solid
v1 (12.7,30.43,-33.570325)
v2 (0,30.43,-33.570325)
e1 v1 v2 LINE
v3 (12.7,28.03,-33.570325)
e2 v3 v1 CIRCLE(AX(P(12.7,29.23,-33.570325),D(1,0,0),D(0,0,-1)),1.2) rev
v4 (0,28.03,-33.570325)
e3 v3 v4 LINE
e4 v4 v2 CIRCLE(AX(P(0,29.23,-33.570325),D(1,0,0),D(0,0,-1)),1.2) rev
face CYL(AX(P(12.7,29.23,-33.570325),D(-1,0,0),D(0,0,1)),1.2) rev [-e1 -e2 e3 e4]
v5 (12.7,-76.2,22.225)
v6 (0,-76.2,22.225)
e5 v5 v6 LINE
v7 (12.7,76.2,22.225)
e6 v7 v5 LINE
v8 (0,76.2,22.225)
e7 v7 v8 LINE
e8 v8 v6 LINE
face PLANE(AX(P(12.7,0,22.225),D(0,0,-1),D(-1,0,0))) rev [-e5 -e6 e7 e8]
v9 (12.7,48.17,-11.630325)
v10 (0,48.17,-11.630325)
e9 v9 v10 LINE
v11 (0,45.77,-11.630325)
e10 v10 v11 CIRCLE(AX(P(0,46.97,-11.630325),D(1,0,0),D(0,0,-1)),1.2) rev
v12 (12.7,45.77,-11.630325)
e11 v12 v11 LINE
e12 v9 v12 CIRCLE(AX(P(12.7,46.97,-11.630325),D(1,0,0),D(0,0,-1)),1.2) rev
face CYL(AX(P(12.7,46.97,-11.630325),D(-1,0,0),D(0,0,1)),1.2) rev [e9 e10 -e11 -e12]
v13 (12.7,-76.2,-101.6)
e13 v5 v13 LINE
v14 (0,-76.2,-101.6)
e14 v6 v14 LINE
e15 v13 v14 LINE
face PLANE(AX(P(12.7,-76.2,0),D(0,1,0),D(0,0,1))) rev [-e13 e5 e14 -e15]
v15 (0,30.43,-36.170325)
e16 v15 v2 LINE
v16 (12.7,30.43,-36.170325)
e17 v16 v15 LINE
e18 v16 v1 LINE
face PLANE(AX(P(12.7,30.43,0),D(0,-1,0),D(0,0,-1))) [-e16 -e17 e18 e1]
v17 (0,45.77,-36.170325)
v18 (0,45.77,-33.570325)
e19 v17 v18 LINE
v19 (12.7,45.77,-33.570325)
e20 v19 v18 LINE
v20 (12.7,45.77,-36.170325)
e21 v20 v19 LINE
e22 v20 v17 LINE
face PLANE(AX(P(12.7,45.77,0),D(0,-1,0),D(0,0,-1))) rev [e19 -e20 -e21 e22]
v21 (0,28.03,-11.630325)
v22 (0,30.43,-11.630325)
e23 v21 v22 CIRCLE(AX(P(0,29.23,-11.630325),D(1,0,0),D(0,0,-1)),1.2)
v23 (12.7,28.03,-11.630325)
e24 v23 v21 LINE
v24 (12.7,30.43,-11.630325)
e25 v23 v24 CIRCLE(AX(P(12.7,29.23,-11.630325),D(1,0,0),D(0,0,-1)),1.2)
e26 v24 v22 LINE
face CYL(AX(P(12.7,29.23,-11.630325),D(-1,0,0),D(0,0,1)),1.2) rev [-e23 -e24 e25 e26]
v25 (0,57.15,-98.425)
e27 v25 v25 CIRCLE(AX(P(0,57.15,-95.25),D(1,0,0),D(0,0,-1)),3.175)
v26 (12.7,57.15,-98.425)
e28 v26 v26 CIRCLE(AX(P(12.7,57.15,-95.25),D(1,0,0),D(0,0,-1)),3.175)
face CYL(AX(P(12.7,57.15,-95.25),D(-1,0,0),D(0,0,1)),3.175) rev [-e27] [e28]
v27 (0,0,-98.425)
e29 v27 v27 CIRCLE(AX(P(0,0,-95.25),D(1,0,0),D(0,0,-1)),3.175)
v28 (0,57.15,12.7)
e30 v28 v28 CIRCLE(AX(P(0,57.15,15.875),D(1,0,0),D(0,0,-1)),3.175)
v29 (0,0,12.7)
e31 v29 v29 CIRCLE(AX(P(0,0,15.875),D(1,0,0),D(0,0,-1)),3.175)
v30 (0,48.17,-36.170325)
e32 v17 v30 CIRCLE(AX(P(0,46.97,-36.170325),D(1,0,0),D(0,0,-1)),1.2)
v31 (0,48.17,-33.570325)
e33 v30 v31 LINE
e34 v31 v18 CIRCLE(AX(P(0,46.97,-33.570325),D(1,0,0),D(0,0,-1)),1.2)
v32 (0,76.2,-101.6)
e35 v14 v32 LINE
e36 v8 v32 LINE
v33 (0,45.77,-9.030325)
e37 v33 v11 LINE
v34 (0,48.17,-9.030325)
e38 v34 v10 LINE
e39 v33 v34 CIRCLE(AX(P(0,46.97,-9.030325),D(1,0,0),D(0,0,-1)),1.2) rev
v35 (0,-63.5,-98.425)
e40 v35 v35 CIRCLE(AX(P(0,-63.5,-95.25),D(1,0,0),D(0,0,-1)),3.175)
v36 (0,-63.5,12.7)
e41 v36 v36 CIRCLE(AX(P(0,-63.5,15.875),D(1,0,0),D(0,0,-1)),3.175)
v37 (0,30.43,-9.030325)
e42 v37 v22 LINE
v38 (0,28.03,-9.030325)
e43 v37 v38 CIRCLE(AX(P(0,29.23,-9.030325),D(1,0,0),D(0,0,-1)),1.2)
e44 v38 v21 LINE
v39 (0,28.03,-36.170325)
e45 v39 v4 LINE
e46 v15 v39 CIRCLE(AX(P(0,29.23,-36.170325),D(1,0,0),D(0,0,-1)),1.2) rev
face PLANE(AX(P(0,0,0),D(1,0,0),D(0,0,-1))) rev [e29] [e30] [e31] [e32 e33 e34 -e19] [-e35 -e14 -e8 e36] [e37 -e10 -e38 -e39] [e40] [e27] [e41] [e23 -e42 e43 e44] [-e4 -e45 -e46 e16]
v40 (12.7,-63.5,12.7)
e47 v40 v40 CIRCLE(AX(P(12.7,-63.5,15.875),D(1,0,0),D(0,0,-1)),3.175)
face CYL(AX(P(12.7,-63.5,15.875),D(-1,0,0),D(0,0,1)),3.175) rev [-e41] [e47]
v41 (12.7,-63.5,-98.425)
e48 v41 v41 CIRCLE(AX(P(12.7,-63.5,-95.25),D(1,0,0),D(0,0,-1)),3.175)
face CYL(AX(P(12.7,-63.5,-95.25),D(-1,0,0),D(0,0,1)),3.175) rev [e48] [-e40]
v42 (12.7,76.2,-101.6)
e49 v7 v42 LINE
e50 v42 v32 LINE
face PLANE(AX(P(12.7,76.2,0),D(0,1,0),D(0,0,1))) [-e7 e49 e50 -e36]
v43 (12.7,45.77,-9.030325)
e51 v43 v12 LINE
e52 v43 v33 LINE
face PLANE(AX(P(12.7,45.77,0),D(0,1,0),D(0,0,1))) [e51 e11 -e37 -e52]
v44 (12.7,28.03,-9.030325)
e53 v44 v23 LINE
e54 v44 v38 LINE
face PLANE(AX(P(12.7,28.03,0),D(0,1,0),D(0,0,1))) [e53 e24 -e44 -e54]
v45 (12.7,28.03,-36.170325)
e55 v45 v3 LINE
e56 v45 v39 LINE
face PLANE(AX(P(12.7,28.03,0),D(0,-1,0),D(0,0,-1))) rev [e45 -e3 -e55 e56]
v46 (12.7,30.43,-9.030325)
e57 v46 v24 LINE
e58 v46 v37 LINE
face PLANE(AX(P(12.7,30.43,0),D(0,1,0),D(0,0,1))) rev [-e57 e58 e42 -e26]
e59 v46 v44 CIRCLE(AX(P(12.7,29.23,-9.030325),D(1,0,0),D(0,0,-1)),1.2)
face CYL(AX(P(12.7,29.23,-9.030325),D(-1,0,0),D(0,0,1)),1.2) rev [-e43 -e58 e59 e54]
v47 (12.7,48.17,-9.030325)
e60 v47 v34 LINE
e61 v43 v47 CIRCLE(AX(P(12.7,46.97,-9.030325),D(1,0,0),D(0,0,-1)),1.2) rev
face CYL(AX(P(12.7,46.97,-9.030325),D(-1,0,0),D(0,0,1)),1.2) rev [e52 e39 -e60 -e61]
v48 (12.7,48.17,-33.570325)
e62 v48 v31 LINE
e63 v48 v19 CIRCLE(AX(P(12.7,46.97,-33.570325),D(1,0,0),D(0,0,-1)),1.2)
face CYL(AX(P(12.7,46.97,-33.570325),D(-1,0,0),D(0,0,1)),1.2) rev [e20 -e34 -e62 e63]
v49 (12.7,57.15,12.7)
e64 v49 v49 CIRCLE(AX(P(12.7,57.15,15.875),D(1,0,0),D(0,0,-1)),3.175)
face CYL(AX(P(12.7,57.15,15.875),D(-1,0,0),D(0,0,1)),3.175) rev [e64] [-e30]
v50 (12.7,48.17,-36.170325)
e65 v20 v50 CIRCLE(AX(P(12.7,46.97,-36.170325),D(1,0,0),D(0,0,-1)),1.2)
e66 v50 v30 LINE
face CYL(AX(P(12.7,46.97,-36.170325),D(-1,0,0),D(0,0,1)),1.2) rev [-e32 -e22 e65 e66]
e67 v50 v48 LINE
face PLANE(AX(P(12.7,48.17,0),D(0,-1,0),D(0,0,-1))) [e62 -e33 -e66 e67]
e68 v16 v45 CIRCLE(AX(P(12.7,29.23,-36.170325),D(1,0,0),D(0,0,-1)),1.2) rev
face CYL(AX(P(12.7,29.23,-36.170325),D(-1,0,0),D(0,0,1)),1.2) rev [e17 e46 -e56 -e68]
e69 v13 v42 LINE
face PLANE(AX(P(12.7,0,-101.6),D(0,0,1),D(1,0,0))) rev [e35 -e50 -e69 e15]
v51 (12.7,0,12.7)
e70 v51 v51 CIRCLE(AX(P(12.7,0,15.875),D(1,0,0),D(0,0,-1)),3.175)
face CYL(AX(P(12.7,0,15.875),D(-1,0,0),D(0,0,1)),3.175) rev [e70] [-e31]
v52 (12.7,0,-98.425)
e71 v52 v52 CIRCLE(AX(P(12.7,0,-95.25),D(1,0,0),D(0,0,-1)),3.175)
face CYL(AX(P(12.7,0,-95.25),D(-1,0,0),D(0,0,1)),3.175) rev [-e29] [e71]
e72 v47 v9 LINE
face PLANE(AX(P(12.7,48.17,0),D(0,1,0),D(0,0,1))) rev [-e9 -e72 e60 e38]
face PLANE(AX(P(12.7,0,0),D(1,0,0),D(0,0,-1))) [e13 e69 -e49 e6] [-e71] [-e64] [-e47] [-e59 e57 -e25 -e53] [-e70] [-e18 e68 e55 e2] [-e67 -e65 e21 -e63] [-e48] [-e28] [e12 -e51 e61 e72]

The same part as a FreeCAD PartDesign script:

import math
import FreeCAD as App
import Part
import Sketcher
Q = App.Units.Quantity


def add_polygon(sketch, points):
    """Adds a closed chain of lines whose ends are joined by coincident constraints."""
    first, n = sketch.GeometryCount, len(points)
    for a, b in zip(points, points[1:] + points[:1]):
        sketch.addGeometry(Part.LineSegment(App.Vector(*a, 0), App.Vector(*b, 0)), False)
    for i in range(n):
        sketch.addConstraint(Sketcher.Constraint("Coincident", first + i, 2, first + (i + 1) % n, 1))

doc = App.newDocument("Part")
body = doc.addObject("PartDesign::Body", "Body")

# Sketch on YZ plane
sketch1 = body.newObject("Sketcher::SketchObject", "Sketch")
sketch1.AttachmentSupport = (doc.getObject("YZ_Plane"), [""])
sketch1.MapMode = "FlatFace"
add_polygon(sketch1, [(-76.2, 22.2), (-76.2, -101.6), (76.2, -101.6), (76.2, 22.2)])  # lines 0-3
sketch1.addGeometry(Part.ArcOfCircle(Part.Circle(App.Vector(-63.5, 15.9, 0), App.Vector(0, 0, 1), 3.2), math.radians(0), math.radians(180)), False)  # 4
sketch1.addGeometry(Part.ArcOfCircle(Part.Circle(App.Vector(-63.5, 15.9, 0), App.Vector(0, 0, 1), 3.2), math.radians(-90), math.radians(0)), False)  # 5
sketch1.addGeometry(Part.ArcOfCircle(Part.Circle(App.Vector(-63.5, 15.9, 0), App.Vector(0, 0, 1), 3.2), math.radians(-180), math.radians(-90)), False)  # 6
sketch1.addGeometry(Part.ArcOfCircle(Part.Circle(App.Vector(0, 15.9, 0), App.Vector(0, 0, 1), 3.2), math.radians(90), math.radians(180)), False)  # 7
sketch1.addGeometry(Part.ArcOfCircle(Part.Circle(App.Vector(0, 15.9, 0), App.Vector(0, 0, 1), 3.2), math.radians(0), math.radians(90)), False)  # 8
sketch1.addGeometry(Part.ArcOfCircle(Part.Circle(App.Vector(0, 15.9, 0), App.Vector(0, 0, 1), 3.2), math.radians(-90), math.radians(0)), False)  # 9
sketch1.addGeometry(Part.ArcOfCircle(Part.Circle(App.Vector(0, 15.9, 0), App.Vector(0, 0, 1), 3.2), math.radians(-180), math.radians(-90)), False)  # 10
sketch1.addGeometry(Part.ArcOfCircle(Part.Circle(App.Vector(57.1, 15.9, 0), App.Vector(0, 0, 1), 3.2), math.radians(0), math.radians(180)), False)  # 11
sketch1.addGeometry(Part.ArcOfCircle(Part.Circle(App.Vector(57.1, 15.9, 0), App.Vector(0, 0, 1), 3.2), math.radians(-90), math.radians(0)), False)  # 12
sketch1.addGeometry(Part.ArcOfCircle(Part.Circle(App.Vector(57.2, 15.9, 0), App.Vector(0, 0, 1), 3.2), math.radians(-180), math.radians(-90)), False)  # 13
sketch1.addGeometry(Part.ArcOfCircle(Part.Circle(App.Vector(0, -95.3, 0), App.Vector(0, 0, 1), 3.2), math.radians(90), math.radians(180)), False)  # 14
sketch1.addGeometry(Part.ArcOfCircle(Part.Circle(App.Vector(0, -95.3, 0), App.Vector(0, 0, 1), 3.2), math.radians(0), math.radians(90)), False)  # 15
sketch1.addGeometry(Part.ArcOfCircle(Part.Circle(App.Vector(0, -95.2, 0), App.Vector(0, 0, 1), 3.2), math.radians(-90), math.radians(0)), False)  # 16
sketch1.addGeometry(Part.ArcOfCircle(Part.Circle(App.Vector(0, -95.2, 0), App.Vector(0, 0, 1), 3.2), math.radians(-180), math.radians(-90)), False)  # 17
sketch1.addGeometry(Part.ArcOfCircle(Part.Circle(App.Vector(-63.5, -95.2, 0), App.Vector(0, 0, 1), 3.2), math.radians(0), math.radians(180)), False)  # 18
sketch1.addGeometry(Part.ArcOfCircle(Part.Circle(App.Vector(-63.5, -95.2, 0), App.Vector(0, 0, 1), 3.2), math.radians(-90), math.radians(0)), False)  # 19
sketch1.addGeometry(Part.ArcOfCircle(Part.Circle(App.Vector(-63.5, -95.2, 0), App.Vector(0, 0, 1), 3.2), math.radians(-180), math.radians(-90)), False)  # 20
sketch1.addGeometry(Part.ArcOfCircle(Part.Circle(App.Vector(57.1, -95.2, 0), App.Vector(0, 0, 1), 3.2), math.radians(0), math.radians(180)), False)  # 21
sketch1.addGeometry(Part.ArcOfCircle(Part.Circle(App.Vector(57.1, -95.2, 0), App.Vector(0, 0, 1), 3.2), math.radians(-90), math.radians(0)), False)  # 22
sketch1.addGeometry(Part.ArcOfCircle(Part.Circle(App.Vector(57.2, -95.2, 0), App.Vector(0, 0, 1), 3.2), math.radians(-180), math.radians(-90)), False)  # 23
sketch1.addGeometry(Part.ArcOfCircle(Part.Circle(App.Vector(47, -36.2, 0), App.Vector(0, 0, 1), 1.2), math.radians(-180), math.radians(-90)), False)  # 24
sketch1.addGeometry(Part.LineSegment(App.Vector(45.8, -36.2, 0), App.Vector(45.8, -33.6, 0)), False)  # 25
sketch1.addGeometry(Part.ArcOfCircle(Part.Circle(App.Vector(47, -33.6, 0), App.Vector(0, 0, 1), 1.2), math.radians(0), math.radians(180)), False)  # 26
sketch1.addGeometry(Part.LineSegment(App.Vector(48.2, -33.6, 0), App.Vector(48.2, -36.2, 0)), False)  # 27
sketch1.addGeometry(Part.ArcOfCircle(Part.Circle(App.Vector(47, -36.2, 0), App.Vector(0, 0, 1), 1.2), math.radians(-90), math.radians(0)), False)  # 28
sketch1.addGeometry(Part.LineSegment(App.Vector(45.8, -11.6, 0), App.Vector(45.8, -9, 0)), False)  # 29
sketch1.addGeometry(Part.ArcOfCircle(Part.Circle(App.Vector(47, -9, 0), App.Vector(0, 0, 1), 1.2), math.radians(0), math.radians(180)), False)  # 30
sketch1.addGeometry(Part.LineSegment(App.Vector(48.2, -9, 0), App.Vector(48.2, -11.6, 0)), False)  # 31
sketch1.addGeometry(Part.ArcOfCircle(Part.Circle(App.Vector(47, -11.6, 0), App.Vector(0, 0, 1), 1.2), math.radians(-90), math.radians(0)), False)  # 32
sketch1.addGeometry(Part.ArcOfCircle(Part.Circle(App.Vector(47, -11.6, 0), App.Vector(0, 0, 1), 1.2), math.radians(-180), math.radians(-90)), False)  # 33
sketch1.addGeometry(Part.LineSegment(App.Vector(30.4, -33.6, 0), App.Vector(30.4, -36.2, 0)), False)  # 34
sketch1.addGeometry(Part.ArcOfCircle(Part.Circle(App.Vector(29.2, -36.2, 0), App.Vector(0, 0, 1), 1.2), math.radians(-90), math.radians(0)), False)  # 35
sketch1.addGeometry(Part.ArcOfCircle(Part.Circle(App.Vector(29.2, -36.2, 0), App.Vector(0, 0, 1), 1.2), math.radians(-180), math.radians(-90)), False)  # 36
sketch1.addGeometry(Part.LineSegment(App.Vector(28, -36.2, 0), App.Vector(28, -33.6, 0)), False)  # 37
sketch1.addGeometry(Part.ArcOfCircle(Part.Circle(App.Vector(29.2, -33.6, 0), App.Vector(0, 0, 1), 1.2), math.radians(0), math.radians(180)), False)  # 38
sketch1.addGeometry(Part.LineSegment(App.Vector(30.4, -9, 0), App.Vector(30.4, -11.6, 0)), False)  # 39
sketch1.addGeometry(Part.ArcOfCircle(Part.Circle(App.Vector(29.2, -11.6, 0), App.Vector(0, 0, 1), 1.2), math.radians(-90), math.radians(0)), False)  # 40
sketch1.addGeometry(Part.ArcOfCircle(Part.Circle(App.Vector(29.2, -11.6, 0), App.Vector(0, 0, 1), 1.2), math.radians(-180), math.radians(-90)), False)  # 41
sketch1.addGeometry(Part.LineSegment(App.Vector(28, -11.6, 0), App.Vector(28, -9, 0)), False)  # 42
sketch1.addGeometry(Part.ArcOfCircle(Part.Circle(App.Vector(29.2, -9, 0), App.Vector(0, 0, 1), 1.2), math.radians(0), math.radians(180)), False)  # 43
sketch1.addConstraint([
    Sketcher.Constraint("Tangent", 4, 1, 5, 2),
    Sketcher.Constraint("Tangent", 5, 1, 6, 2),
    Sketcher.Constraint("Tangent", 6, 1, 4, 2),
    Sketcher.Constraint("Tangent", 7, 1, 8, 2),
    Sketcher.Constraint("Tangent", 8, 1, 9, 2),
    Sketcher.Constraint("Tangent", 9, 1, 10, 2),
    Sketcher.Constraint("Tangent", 10, 1, 7, 2),
    Sketcher.Constraint("Tangent", 11, 1, 12, 2),
    Sketcher.Constraint("Tangent", 12, 1, 13, 2),
    Sketcher.Constraint("Tangent", 13, 1, 11, 2),
    Sketcher.Constraint("Tangent", 14, 1, 15, 2),
    Sketcher.Constraint("Tangent", 15, 1, 16, 2),
    Sketcher.Constraint("Tangent", 16, 1, 17, 2),
    Sketcher.Constraint("Tangent", 17, 1, 14, 2),
    Sketcher.Constraint("Tangent", 18, 1, 19, 2),
    Sketcher.Constraint("Tangent", 19, 1, 20, 2),
    Sketcher.Constraint("Tangent", 20, 1, 18, 2),
    Sketcher.Constraint("Tangent", 21, 1, 22, 2),
    Sketcher.Constraint("Tangent", 22, 1, 23, 2),
    Sketcher.Constraint("Tangent", 23, 1, 21, 2),
    Sketcher.Constraint("Tangent", 24, 1, 25, 1),
    Sketcher.Constraint("Tangent", 25, 2, 26, 2),
    Sketcher.Constraint("Tangent", 26, 1, 27, 1),
    Sketcher.Constraint("Tangent", 27, 2, 28, 2),
    Sketcher.Constraint("Tangent", 28, 1, 24, 2),
    Sketcher.Constraint("Tangent", 29, 2, 30, 2),
    Sketcher.Constraint("Tangent", 30, 1, 31, 1),
    Sketcher.Constraint("Tangent", 31, 2, 32, 2),
    Sketcher.Constraint("Tangent", 32, 1, 33, 2),
    Sketcher.Constraint("Tangent", 33, 1, 29, 1),
    Sketcher.Constraint("Tangent", 34, 2, 35, 2),
    Sketcher.Constraint("Tangent", 35, 1, 36, 2),
    Sketcher.Constraint("Tangent", 36, 1, 37, 1),
    Sketcher.Constraint("Tangent", 37, 2, 38, 2),
    Sketcher.Constraint("Tangent", 38, 1, 34, 1),
    Sketcher.Constraint("Tangent", 39, 2, 40, 2),
    Sketcher.Constraint("Tangent", 40, 1, 41, 2),
    Sketcher.Constraint("Tangent", 41, 1, 42, 1),
    Sketcher.Constraint("Tangent", 42, 2, 43, 2),
    Sketcher.Constraint("Tangent", 43, 1, 39, 1),
    Sketcher.Constraint("Vertical", 0),
    Sketcher.Constraint("Horizontal", 1),
    Sketcher.Constraint("Vertical", 2),
    Sketcher.Constraint("Horizontal", 3),
    Sketcher.Constraint("Vertical", 25),
    Sketcher.Constraint("Vertical", 27),
    Sketcher.Constraint("Vertical", 29),
    Sketcher.Constraint("Vertical", 31),
    Sketcher.Constraint("Vertical", 34),
    Sketcher.Constraint("Vertical", 37),
    Sketcher.Constraint("Vertical", 39),
    Sketcher.Constraint("Vertical", 42),
    Sketcher.Constraint("Equal", 6, 7),
    Sketcher.Constraint("Equal", 7, 8),
    Sketcher.Constraint("Equal", 10, 11),
    Sketcher.Constraint("Equal", 13, 14),
    Sketcher.Constraint("Equal", 14, 15),
    Sketcher.Constraint("Equal", 17, 18),
    Sketcher.Constraint("Equal", 20, 21),
    Sketcher.Constraint("Equal", 24, 26),
    Sketcher.Constraint("Equal", 28, 30),
    Sketcher.Constraint("Equal", 30, 32),
    Sketcher.Constraint("Equal", 33, 35),
    Sketcher.Constraint("Equal", 35, 36),
    Sketcher.Constraint("Equal", 38, 40),
    Sketcher.Constraint("Equal", 40, 41),
    Sketcher.Constraint("Symmetric", 8, 1, 10, 1, -2),
    Sketcher.Constraint("Symmetric", 4, 1, 11, 1, -2),
    Sketcher.Constraint("Symmetric", 15, 1, 17, 1, -2),
    Sketcher.Constraint("Symmetric", 18, 1, 21, 1, -2),
    Sketcher.Constraint("PointOnObject", 7, 1, -2),
    Sketcher.Constraint("PointOnObject", 9, 1, -2),
    Sketcher.Constraint("PointOnObject", 14, 1, -2),
    Sketcher.Constraint("PointOnObject", 16, 1, -2),
    Sketcher.Constraint("Horizontal", 6, 3, 7, 3),
    Sketcher.Constraint("Horizontal", 10, 3, 11, 3),
    Sketcher.Constraint("Horizontal", 17, 3, 18, 3),
    Sketcher.Constraint("Horizontal", 20, 3, 21, 3),
    Sketcher.Constraint("Horizontal", 28, 3, 35, 3),
    Sketcher.Constraint("Horizontal", 26, 3, 38, 3),
    Sketcher.Constraint("Horizontal", 33, 3, 40, 3),
    Sketcher.Constraint("Horizontal", 30, 3, 43, 3),
    Sketcher.Constraint("Horizontal", 13, 3, 4, 1),
    Sketcher.Constraint("Horizontal", 4, 1, 6, 1),
    Sketcher.Constraint("Horizontal", 6, 1, 8, 1),
    Sketcher.Constraint("Horizontal", 11, 1, 13, 1),
    Sketcher.Constraint("Horizontal", 23, 3, 15, 1),
    Sketcher.Constraint("Horizontal", 17, 1, 18, 1),
    Sketcher.Constraint("Horizontal", 18, 1, 20, 1),
    Sketcher.Constraint("Horizontal", 21, 1, 23, 1),
    Sketcher.Constraint("Vertical", 6, 3, 18, 3),
    Sketcher.Constraint("Vertical", 28, 3, 30, 3),
    Sketcher.Constraint("Vertical", 38, 3, 40, 3),
    Sketcher.Constraint("Vertical", 20, 3, 5, 1),
    Sketcher.Constraint("Vertical", 23, 3, 12, 1),
    Sketcher.Constraint("Vertical", 5, 1, 19, 1),
    Sketcher.Constraint("Vertical", 12, 1, 22, 1),
    Sketcher.Constraint("Vertical", 33, 3, 28, 1),
    Sketcher.Constraint("Vertical", 28, 1, 32, 1),
    Sketcher.Constraint("Vertical", 43, 3, 35, 1),
    Sketcher.Constraint("Vertical", 35, 1, 40, 1),
    Sketcher.Constraint("Equal", 27, 29),
    Sketcher.Constraint("DistanceX", 1, 1, 1, 2, Q("6 in")),
    Sketcher.Constraint("DistanceX", 0, 2, -1, 1, Q("3 in")),
    Sketcher.Constraint("DistanceY", 0, 2, -1, 1, Q("4 in")),
    Sketcher.Constraint("Radius", 4, Q("0.125 in")),
    Sketcher.Constraint("DistanceX", 4, 3, -1, 1, Q("2.5 in")),
    Sketcher.Constraint("DistanceY", -1, 1, 5, 1, Q("0.5 in")),
    Sketcher.Constraint("DistanceY", 0, 2, 0, 1, Q("4.875 in")),
    Sketcher.Constraint("DistanceY", 14, 3, -1, 1, Q("3.75 in")),
    Sketcher.Constraint("Radius", 24, 1.2),
    Sketcher.Constraint("DistanceY", 25, 1, 25, 2, 2.6),
    Sketcher.Constraint("DistanceX", -1, 1, 24, 3, 46.97),
    Sketcher.Constraint("DistanceX", -1, 1, 35, 3, 29.23),
    Sketcher.Constraint("DistanceY", 24, 3, -1, 1, 36.170325),
    Sketcher.Constraint("DistanceY", 30, 3, -1, 1, 9.030325),
])
pad1 = body.newObject("PartDesign::Pad", "Pad")
pad1.Profile = sketch1
pad1.Length = Q("0.5 in")

doc.recompute()
